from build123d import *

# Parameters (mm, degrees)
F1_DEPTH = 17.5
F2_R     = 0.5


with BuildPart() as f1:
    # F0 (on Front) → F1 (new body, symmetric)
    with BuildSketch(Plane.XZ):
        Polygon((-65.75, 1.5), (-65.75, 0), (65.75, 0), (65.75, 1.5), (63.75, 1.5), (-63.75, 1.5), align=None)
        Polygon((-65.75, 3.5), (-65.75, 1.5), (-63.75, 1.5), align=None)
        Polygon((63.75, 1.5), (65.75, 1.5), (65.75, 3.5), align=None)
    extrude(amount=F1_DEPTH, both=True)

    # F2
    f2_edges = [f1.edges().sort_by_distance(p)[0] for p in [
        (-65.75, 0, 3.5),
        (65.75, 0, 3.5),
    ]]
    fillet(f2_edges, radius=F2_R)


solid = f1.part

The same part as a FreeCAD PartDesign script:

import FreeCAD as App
import Part
import Sketcher
from FreeCAD import Vector
Q = App.Units.Quantity


def edges_at(feature, points):
    """Names of the edges that pass closest to the given points."""
    edges = feature.Shape.Edges
    near = lambda p: min(range(len(edges)), key=lambda i: edges[i].distToShape(Part.Vertex(*p))[0])
    return sorted({f"Edge{near(p) + 1}" for p in points})


def add_polygon(sketch, points):
    """Adds a closed chain of lines whose ends are joined by coincident constraints."""
    first, n = sketch.GeometryCount, len(points)
    for a, b in zip(points, points[1:] + points[:1]):
        sketch.addGeometry(Part.LineSegment(App.Vector(*a, 0), App.Vector(*b, 0)), False)
    for i in range(n):
        sketch.addConstraint(Sketcher.Constraint("Coincident", first + i, 2, first + (i + 1) % n, 1))

doc = App.newDocument("Part")
body = doc.addObject("PartDesign::Body", "Body")

# Sketch on XZ plane
sketch1 = doc.addObject("Sketcher::SketchObject", "Sketch")
body.addObject(sketch1)
sketch1.AttachmentSupport = (doc.XZ_Plane, [""])
sketch1.MapMode = "FlatFace"
add_polygon(sketch1, [(-65.75, 0), (65.75, 0), (65.75, 3.5), (63.75, 1.5), (-63.75, 1.5), (-65.75, 3.5)])  # lines 0-5
sketch1.addConstraint([
    Sketcher.Constraint("Horizontal", 0),
    Sketcher.Constraint("Vertical", 1),
    Sketcher.Constraint("Horizontal", 3),
    Sketcher.Constraint("Vertical", 5),
    Sketcher.Constraint("Symmetric", 0, 2, 5, 2, -1, 1),
    Sketcher.Constraint("Perpendicular", 2, 4),
    Sketcher.Constraint("Horizontal", 1, 2, 4, 2),
    Sketcher.Constraint("Equal", 2, 4),
    Sketcher.Constraint("DistanceX", 0, 1, 0, 2, Q("131.5 mm")),
    Sketcher.Constraint("DistanceX", 3, 2, 3, 1, Q("127.5 mm")),
    Sketcher.Constraint("DistanceY", 1, 1, 1, 2, Q("3.5 mm")),
])
pad1 = doc.addObject("PartDesign::Pad", "Pad")
body.addObject(pad1)
pad1.Profile = sketch1
pad1.Length = 35
pad1.Midplane = True
doc.recompute()

fillet = doc.addObject("PartDesign::Fillet", "Fillet")
body.addObject(fillet)
fillet.Base = (pad1, edges_at(pad1, [(-65.75, 0, 3.5), (65.75, 0, 3.5)]))
fillet.Radius = 0.5

doc.recompute()
